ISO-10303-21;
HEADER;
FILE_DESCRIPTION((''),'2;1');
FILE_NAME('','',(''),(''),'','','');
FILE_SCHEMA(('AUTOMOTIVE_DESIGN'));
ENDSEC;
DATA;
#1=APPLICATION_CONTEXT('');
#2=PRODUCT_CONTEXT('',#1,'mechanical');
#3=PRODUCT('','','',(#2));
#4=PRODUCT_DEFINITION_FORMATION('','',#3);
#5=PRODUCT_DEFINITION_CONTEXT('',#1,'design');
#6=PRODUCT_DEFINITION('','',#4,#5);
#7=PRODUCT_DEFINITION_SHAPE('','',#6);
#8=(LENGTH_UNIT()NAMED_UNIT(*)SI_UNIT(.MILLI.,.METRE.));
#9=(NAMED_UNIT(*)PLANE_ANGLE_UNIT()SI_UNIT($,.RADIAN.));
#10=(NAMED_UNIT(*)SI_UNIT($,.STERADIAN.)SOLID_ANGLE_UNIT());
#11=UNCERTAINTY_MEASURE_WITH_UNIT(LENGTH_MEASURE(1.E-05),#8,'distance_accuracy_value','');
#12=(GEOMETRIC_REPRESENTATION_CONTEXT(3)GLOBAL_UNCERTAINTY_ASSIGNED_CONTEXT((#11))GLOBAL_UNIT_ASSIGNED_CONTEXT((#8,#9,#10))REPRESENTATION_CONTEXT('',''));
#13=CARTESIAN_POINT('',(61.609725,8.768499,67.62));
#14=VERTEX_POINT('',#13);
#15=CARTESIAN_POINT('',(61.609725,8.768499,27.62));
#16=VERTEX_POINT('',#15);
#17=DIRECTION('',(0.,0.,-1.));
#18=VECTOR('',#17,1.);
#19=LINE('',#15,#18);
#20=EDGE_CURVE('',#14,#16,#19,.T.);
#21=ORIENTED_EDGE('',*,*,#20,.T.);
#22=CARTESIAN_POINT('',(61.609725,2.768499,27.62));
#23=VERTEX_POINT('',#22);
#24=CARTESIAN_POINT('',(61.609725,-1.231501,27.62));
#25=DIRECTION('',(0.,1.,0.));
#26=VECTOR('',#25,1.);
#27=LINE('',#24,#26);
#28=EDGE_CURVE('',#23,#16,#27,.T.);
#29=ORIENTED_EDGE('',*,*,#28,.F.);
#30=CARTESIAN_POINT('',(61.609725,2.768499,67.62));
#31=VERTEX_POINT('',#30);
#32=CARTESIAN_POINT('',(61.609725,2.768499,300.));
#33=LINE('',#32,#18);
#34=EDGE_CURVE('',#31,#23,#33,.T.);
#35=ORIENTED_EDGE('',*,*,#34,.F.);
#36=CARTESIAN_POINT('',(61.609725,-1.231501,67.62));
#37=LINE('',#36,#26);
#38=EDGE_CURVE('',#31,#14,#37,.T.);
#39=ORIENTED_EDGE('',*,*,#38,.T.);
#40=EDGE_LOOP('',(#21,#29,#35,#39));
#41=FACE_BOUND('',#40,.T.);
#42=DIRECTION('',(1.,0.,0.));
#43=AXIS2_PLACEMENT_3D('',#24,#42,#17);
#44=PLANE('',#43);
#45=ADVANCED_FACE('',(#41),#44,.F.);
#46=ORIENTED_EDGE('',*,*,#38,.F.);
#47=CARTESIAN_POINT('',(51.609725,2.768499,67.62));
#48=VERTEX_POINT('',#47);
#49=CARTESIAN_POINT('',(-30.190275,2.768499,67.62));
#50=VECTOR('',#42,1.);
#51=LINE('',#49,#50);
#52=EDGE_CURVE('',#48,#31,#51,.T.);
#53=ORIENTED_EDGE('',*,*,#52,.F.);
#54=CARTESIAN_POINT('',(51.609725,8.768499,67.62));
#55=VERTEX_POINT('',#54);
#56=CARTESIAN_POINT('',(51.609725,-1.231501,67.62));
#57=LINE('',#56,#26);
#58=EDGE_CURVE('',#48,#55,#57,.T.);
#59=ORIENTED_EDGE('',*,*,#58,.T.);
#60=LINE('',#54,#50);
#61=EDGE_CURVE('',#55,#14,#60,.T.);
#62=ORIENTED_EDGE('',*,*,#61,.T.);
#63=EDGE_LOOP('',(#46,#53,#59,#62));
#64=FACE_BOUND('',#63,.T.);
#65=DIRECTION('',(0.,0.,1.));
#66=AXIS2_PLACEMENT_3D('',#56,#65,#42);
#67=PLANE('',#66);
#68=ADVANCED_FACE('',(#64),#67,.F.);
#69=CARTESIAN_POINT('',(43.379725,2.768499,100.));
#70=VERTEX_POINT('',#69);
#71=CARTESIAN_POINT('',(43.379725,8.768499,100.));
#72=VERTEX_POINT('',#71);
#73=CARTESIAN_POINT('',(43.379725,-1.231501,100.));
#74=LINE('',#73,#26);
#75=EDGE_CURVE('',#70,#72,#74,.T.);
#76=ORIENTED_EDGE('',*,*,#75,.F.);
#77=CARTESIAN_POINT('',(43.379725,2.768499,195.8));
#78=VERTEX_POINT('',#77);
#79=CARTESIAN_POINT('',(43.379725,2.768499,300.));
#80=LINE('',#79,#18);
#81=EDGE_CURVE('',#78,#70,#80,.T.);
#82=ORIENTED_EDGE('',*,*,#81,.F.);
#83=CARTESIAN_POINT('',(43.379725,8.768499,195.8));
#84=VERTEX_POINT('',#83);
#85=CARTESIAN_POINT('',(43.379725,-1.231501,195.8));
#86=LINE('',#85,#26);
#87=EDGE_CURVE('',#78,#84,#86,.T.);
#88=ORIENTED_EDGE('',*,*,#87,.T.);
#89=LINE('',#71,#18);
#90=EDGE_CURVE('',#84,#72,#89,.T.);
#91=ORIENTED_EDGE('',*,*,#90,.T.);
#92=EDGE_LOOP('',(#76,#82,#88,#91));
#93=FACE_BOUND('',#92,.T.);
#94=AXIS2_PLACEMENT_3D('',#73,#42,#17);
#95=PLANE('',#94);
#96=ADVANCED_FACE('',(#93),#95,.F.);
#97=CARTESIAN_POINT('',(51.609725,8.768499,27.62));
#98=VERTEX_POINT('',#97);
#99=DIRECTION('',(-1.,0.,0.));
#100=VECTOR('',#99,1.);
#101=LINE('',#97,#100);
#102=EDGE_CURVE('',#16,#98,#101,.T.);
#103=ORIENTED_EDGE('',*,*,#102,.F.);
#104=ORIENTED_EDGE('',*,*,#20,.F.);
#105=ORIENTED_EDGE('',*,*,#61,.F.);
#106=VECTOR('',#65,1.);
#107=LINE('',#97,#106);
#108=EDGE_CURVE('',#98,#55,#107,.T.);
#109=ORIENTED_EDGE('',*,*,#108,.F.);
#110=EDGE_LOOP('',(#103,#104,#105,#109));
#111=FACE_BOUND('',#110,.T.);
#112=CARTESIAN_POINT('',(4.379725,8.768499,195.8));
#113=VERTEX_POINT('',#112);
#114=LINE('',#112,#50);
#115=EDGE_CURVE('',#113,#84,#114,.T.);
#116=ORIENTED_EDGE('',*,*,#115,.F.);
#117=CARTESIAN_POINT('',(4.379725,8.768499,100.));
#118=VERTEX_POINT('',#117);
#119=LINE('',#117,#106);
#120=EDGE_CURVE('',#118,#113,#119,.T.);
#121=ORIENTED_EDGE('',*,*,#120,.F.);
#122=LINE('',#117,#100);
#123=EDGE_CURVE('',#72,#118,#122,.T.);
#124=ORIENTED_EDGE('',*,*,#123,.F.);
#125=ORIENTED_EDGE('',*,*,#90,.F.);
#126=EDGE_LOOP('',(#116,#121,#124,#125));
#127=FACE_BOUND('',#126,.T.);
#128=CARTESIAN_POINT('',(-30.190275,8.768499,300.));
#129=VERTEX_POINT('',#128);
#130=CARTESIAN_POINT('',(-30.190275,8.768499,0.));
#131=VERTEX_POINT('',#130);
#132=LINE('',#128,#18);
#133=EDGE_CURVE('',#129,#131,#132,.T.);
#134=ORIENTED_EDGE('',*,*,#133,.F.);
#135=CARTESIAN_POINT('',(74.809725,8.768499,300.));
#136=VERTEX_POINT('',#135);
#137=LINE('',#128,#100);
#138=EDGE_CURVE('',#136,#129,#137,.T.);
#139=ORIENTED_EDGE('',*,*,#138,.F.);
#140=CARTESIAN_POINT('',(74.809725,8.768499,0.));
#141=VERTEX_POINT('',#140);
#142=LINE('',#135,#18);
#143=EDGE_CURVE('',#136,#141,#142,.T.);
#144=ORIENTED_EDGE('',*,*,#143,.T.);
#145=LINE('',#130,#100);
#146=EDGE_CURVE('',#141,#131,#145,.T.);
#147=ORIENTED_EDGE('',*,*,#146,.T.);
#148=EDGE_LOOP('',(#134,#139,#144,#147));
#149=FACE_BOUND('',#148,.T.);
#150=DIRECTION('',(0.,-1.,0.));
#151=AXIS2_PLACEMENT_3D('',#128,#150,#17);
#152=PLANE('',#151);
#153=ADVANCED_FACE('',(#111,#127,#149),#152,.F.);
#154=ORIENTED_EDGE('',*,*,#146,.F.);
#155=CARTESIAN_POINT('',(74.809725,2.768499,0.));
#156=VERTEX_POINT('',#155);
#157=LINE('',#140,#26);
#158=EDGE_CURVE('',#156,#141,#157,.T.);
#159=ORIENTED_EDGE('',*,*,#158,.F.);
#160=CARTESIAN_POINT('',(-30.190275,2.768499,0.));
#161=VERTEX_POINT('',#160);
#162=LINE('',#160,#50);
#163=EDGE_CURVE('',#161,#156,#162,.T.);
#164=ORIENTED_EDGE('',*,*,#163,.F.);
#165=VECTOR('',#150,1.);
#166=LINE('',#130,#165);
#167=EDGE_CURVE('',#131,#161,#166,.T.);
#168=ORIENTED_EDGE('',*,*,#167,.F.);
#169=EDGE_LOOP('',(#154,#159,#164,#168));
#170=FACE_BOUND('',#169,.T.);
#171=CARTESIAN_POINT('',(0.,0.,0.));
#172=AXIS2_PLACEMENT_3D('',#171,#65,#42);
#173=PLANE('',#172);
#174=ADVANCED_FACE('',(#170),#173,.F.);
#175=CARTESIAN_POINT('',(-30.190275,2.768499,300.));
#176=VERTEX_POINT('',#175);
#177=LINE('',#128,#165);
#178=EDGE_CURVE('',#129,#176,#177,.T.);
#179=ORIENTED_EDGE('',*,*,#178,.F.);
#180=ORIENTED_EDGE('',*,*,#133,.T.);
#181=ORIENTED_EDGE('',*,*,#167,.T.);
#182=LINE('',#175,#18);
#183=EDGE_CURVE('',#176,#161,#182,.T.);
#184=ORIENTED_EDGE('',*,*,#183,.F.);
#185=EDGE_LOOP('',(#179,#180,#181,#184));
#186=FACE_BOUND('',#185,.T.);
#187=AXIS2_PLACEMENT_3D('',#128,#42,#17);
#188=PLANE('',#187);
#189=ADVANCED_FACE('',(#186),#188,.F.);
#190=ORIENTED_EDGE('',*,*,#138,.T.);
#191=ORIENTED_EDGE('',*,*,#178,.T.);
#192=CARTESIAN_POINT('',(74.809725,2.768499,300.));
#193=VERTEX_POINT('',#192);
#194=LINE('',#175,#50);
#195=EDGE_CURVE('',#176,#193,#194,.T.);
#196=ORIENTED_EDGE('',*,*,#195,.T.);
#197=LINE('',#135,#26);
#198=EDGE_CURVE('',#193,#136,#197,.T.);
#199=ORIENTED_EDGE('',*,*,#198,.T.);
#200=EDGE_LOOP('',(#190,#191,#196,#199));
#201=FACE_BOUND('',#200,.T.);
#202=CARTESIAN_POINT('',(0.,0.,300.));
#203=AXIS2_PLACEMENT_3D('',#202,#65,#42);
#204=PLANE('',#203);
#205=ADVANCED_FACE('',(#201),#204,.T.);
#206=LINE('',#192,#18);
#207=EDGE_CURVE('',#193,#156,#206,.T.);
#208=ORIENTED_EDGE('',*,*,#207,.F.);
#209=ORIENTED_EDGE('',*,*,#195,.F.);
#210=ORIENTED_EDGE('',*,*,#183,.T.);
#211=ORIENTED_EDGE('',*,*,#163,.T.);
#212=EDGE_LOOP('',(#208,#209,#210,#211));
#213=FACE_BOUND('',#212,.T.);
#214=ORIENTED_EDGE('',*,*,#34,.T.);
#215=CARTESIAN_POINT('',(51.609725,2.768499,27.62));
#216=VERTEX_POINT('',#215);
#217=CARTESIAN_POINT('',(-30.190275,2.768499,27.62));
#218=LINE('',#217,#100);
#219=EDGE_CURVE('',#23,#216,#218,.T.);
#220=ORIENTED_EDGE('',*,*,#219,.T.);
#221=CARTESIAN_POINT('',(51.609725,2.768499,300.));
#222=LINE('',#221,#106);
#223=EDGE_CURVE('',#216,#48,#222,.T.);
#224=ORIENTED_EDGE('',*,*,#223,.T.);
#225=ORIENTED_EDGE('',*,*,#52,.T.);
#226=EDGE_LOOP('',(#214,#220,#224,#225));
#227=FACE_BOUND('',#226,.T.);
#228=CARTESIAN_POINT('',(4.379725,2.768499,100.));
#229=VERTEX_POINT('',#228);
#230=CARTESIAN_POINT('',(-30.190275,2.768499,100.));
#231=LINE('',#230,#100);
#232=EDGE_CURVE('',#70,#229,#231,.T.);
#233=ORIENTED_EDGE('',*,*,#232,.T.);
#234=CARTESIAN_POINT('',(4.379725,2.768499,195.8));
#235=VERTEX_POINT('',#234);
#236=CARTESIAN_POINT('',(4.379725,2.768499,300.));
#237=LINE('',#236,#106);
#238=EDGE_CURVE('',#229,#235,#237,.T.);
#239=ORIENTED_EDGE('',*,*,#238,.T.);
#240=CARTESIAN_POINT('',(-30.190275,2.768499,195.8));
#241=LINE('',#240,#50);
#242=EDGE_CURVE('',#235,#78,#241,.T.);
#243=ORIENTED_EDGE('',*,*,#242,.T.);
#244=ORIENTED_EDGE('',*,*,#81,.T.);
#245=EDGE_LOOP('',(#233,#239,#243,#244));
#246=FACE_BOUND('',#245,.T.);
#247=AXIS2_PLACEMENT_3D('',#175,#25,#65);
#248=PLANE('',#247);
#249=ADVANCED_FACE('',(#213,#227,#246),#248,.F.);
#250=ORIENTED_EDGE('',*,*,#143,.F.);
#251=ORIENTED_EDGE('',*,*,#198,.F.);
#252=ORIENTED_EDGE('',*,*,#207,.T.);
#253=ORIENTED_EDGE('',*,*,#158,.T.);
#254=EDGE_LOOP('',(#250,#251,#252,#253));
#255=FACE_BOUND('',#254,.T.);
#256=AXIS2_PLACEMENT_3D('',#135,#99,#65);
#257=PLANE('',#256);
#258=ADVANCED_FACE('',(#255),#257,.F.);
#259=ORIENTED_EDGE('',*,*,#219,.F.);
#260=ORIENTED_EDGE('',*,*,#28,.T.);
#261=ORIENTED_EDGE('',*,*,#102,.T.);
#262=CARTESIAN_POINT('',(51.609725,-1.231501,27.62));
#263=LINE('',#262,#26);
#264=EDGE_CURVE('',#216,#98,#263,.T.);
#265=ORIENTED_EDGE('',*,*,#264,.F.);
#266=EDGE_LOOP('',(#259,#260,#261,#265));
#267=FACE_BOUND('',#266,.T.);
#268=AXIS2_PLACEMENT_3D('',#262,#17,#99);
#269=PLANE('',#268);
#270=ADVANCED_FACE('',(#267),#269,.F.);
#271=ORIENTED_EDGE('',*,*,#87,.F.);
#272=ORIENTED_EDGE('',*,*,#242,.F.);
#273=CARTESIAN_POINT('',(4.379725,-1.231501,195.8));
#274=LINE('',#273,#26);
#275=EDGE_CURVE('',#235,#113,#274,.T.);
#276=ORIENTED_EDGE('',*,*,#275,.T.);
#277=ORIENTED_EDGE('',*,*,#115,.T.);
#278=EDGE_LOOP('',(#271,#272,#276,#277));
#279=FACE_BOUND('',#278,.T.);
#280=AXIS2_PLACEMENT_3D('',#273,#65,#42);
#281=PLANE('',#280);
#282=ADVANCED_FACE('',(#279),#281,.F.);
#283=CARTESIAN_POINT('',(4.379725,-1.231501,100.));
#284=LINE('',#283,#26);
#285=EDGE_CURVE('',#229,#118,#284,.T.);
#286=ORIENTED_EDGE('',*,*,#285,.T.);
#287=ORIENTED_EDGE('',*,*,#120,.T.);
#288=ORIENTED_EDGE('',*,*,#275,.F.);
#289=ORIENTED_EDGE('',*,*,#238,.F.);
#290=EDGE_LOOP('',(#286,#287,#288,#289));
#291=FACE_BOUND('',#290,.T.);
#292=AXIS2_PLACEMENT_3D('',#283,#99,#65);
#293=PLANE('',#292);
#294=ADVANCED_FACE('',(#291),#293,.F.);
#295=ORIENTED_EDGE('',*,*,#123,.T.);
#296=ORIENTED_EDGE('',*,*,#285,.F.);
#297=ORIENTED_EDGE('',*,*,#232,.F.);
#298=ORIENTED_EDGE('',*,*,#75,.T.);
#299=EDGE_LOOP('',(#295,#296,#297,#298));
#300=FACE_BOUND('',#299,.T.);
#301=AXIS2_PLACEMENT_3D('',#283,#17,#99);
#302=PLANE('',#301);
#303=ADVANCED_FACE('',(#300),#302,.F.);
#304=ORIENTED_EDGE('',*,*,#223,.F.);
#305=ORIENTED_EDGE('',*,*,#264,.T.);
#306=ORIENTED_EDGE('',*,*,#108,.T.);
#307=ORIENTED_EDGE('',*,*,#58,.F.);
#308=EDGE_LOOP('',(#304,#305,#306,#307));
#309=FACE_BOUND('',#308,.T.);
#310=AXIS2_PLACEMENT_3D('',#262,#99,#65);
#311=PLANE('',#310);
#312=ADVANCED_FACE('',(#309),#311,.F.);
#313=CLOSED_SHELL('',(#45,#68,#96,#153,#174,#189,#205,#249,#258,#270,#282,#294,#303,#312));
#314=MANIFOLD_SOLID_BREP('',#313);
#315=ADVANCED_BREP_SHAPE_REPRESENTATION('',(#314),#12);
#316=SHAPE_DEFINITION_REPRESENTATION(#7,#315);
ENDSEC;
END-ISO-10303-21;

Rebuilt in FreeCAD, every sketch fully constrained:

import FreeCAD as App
import Part
import Sketcher
from FreeCAD import Vector

doc = App.newDocument("Part")
body = doc.addObject("PartDesign::Body", "Body")

# Sketch on XY plane
sketch1 = body.newObject("Sketcher::SketchObject", "Sketch")
sketch1.AttachmentSupport = (doc.getObject("XY_Plane"), [""])
sketch1.MapMode = "FlatFace"
sketch1.addGeometry([
    Part.LineSegment(Vector(-30, 9, 0), Vector(-30, 3, 0)),
    Part.LineSegment(Vector(-30, 3, 0), Vector(75, 3, 0)),
    Part.LineSegment(Vector(75, 3, 0), Vector(75, 9, 0)),
    Part.LineSegment(Vector(75, 9, 0), Vector(-30, 9, 0)),
], False)
sketch1.addConstraint([
    Sketcher.Constraint("Coincident", 0, 2, 1, 1),
    Sketcher.Constraint("Coincident", 1, 2, 2, 1),
    Sketcher.Constraint("Coincident", 2, 2, 3, 1),
    Sketcher.Constraint("Coincident", 3, 2, 0, 1),
    Sketcher.Constraint("Vertical", 0),
    Sketcher.Constraint("Horizontal", 1),
    Sketcher.Constraint("Vertical", 2),
    Sketcher.Constraint("Horizontal", 3),
    Sketcher.Constraint("DistanceX", 1, 1, 1, 2, 105.0),
    Sketcher.Constraint("DistanceY", 0, 2, 0, 1, 6.0),
    Sketcher.Constraint("DistanceY", -1, 1, 0, 2, 2.768499),
    Sketcher.Constraint("DistanceX", 0, 2, -1, 1, 30.190275),
])
pad1 = body.newObject("PartDesign::Pad", "Pad")
pad1.Profile = sketch1
pad1.Length = 300

# Sketch on XZ plane
sketch2 = body.newObject("Sketcher::SketchObject", "Sketch001")
sketch2.AttachmentSupport = (doc.getObject("XZ_Plane"), [""])
sketch2.MapMode = "FlatFace"
sketch2.AttachmentOffset = App.Placement(Vector(0, 0, -8.768499), App.Rotation())
sketch2.addGeometry([
    Part.LineSegment(Vector(52, 28, 0), Vector(52, 68, 0)),
    Part.LineSegment(Vector(52, 68, 0), Vector(62, 68, 0)),
    Part.LineSegment(Vector(62, 68, 0), Vector(62, 28, 0)),
    Part.LineSegment(Vector(62, 28, 0), Vector(52, 28, 0)),
], False)
sketch2.addConstraint([
    Sketcher.Constraint("Coincident", 0, 2, 1, 1),
    Sketcher.Constraint("Coincident", 1, 2, 2, 1),
    Sketcher.Constraint("Coincident", 2, 2, 3, 1),
    Sketcher.Constraint("Coincident", 3, 2, 0, 1),
    Sketcher.Constraint("Vertical", 0),
    Sketcher.Constraint("Horizontal", 1),
    Sketcher.Constraint("Vertical", 2),
    Sketcher.Constraint("Horizontal", 3),
    Sketcher.Constraint("DistanceX", 1, 1, 1, 2, 10.0),
    Sketcher.Constraint("DistanceY", 0, 1, 0, 2, 40.0),
    Sketcher.Constraint("DistanceY", -1, 1, 0, 2, 67.62),
    Sketcher.Constraint("DistanceX", -1, 1, 0, 2, 51.609725),
])
pocket1 = body.newObject("PartDesign::Pocket", "Pocket")
pocket1.Profile = sketch2
pocket1.Length = 10
pocket1.Reversed = True

# Sketch on XZ plane
sketch3 = body.newObject("Sketcher::SketchObject", "Sketch002")
sketch3.AttachmentSupport = (doc.getObject("XZ_Plane"), [""])
sketch3.MapMode = "FlatFace"
sketch3.AttachmentOffset = App.Placement(Vector(0, 0, -8.768499), App.Rotation())
sketch3.addGeometry([
    Part.LineSegment(Vector(4, 100, 0), Vector(4, 196, 0)),
    Part.LineSegment(Vector(4, 196, 0), Vector(43, 196, 0)),
    Part.LineSegment(Vector(43, 196, 0), Vector(43, 100, 0)),
    Part.LineSegment(Vector(43, 100, 0), Vector(4, 100, 0)),
], False)
sketch3.addConstraint([
    Sketcher.Constraint("Coincident", 0, 2, 1, 1),
    Sketcher.Constraint("Coincident", 1, 2, 2, 1),
    Sketcher.Constraint("Coincident", 2, 2, 3, 1),
    Sketcher.Constraint("Coincident", 3, 2, 0, 1),
    Sketcher.Constraint("Vertical", 0),
    Sketcher.Constraint("Horizontal", 1),
    Sketcher.Constraint("Vertical", 2),
    Sketcher.Constraint("Horizontal", 3),
    Sketcher.Constraint("DistanceX", 1, 1, 1, 2, 39.0),
    Sketcher.Constraint("DistanceY", 0, 1, 0, 2, 95.8),
    Sketcher.Constraint("DistanceY", -1, 1, 2, 2, 100.0),
    Sketcher.Constraint("DistanceX", -1, 1, 0, 2, 4.379725),
])
pocket2 = body.newObject("PartDesign::Pocket", "Pocket001")
pocket2.Profile = sketch3
pocket2.Length = 10
pocket2.Reversed = True

doc.recompute()
